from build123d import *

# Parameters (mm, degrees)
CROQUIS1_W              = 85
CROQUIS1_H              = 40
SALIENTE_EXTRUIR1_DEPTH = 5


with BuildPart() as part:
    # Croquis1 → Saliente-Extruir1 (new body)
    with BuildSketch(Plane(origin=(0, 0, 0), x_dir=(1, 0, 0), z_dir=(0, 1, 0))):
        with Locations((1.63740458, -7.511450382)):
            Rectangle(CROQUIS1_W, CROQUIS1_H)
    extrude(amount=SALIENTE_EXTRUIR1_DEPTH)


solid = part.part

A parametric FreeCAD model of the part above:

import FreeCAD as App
import Part
import Sketcher


def add_polygon(sketch, points):
    """Adds a closed chain of lines whose ends are joined by coincident constraints."""
    first, n = sketch.GeometryCount, len(points)
    for a, b in zip(points, points[1:] + points[:1]):
        sketch.addGeometry(Part.LineSegment(App.Vector(*a, 0), App.Vector(*b, 0)), False)
    for i in range(n):
        sketch.addConstraint(Sketcher.Constraint("Coincident", first + i, 2, first + (i + 1) % n, 1))

doc = App.newDocument("Part")
params = doc.addObject("Spreadsheet::Sheet", "Params")
for row, (alias, value) in enumerate([
    ("sketch1_width", "85 mm"),
    ("sketch1_height", "40 mm"),
    ("pad1_length", "5 mm"),
], start=1):
    params.set(f"A{row}", alias)
    params.set(f"B{row}", "=" + value)
    params.setAlias(f"B{row}", alias)

body = doc.addObject("PartDesign::Body", "Body")

sketch1 = body.newObject("Sketcher::SketchObject", "Sketch")
sketch1.AttachmentSupport = (doc.getObject("XZ_Plane"), [""])
sketch1.MapMode = "FlatFace"
add_polygon(sketch1, [(-40.862595, -12.48855), (-40.862595, 27.51145), (44.137405, 27.51145), (44.137405, -12.48855)])
sketch1.addConstraint(Sketcher.Constraint("Vertical", 0))
sketch1.addConstraint(Sketcher.Constraint("Horizontal", 1))
sketch1.addConstraint(Sketcher.Constraint("Vertical", 2))
sketch1.addConstraint(Sketcher.Constraint("Horizontal", 3))
sketch1.addConstraint(Sketcher.Constraint("DistanceX", 1, 1, 1, 2, 85.0))
sketch1.addConstraint(Sketcher.Constraint("DistanceY", 0, 1, 0, 2, 40.0))
sketch1.addConstraint(Sketcher.Constraint("DistanceY", -1, 1, 0, 2, 27.51145))
sketch1.addConstraint(Sketcher.Constraint("DistanceX", 0, 2, -1, 1, 40.862595))
sketch1.setExpression("Constraints[8]", "Params.sketch1_width")
sketch1.setExpression("Constraints[9]", "Params.sketch1_height")
pad1 = body.newObject("PartDesign::Pad", "Pad")
pad1.Profile = sketch1
pad1.setExpression("Length", "Params.pad1_length")
pad1.Reversed = True

doc.recompute()
